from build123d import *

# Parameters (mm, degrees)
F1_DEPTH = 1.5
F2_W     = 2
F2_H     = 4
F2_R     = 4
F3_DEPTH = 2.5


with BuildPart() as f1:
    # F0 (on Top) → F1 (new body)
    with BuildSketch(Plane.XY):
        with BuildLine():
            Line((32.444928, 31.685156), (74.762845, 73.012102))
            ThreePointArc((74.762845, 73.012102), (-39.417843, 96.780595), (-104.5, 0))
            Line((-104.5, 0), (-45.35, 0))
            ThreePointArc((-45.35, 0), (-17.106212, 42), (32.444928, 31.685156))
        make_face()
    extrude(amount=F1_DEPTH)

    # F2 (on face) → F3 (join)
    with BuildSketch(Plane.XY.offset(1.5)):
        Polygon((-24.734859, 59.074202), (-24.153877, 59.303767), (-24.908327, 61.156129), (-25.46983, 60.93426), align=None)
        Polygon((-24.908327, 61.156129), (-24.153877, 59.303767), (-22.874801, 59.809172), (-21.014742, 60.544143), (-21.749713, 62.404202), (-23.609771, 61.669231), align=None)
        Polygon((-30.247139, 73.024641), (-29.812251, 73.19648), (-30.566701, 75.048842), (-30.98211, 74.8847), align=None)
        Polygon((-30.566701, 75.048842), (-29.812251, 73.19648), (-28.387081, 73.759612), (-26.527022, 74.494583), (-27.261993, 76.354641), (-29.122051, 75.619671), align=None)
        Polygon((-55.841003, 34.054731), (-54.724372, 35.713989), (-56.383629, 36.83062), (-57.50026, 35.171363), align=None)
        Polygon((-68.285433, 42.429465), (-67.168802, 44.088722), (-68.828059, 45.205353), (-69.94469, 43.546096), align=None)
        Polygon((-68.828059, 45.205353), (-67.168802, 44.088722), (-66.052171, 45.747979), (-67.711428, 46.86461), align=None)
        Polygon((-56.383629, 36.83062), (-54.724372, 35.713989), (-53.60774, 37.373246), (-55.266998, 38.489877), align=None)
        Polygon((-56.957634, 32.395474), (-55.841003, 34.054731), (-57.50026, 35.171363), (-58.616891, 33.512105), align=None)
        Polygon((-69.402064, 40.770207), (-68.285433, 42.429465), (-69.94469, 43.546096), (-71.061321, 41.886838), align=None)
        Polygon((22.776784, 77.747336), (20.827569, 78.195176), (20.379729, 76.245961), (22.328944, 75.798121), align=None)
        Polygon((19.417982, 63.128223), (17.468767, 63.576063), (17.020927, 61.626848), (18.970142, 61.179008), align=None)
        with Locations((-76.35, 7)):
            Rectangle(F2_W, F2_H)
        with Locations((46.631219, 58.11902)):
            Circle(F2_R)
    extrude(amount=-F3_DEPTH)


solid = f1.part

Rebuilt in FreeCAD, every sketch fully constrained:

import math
import FreeCAD as App
import Part
import Sketcher
from FreeCAD import Vector

doc = App.newDocument("Part")
params = doc.addObject("Spreadsheet::Sheet", "Params")
for row, (alias, value) in enumerate([
    ("sketch1_radius", "104.5 mm"),
    ("sketch1_radius2", "45.35 mm"),
    ("pad1_length", "1.5 mm"),
    ("sketch2_diameter", "8 mm"),
    ("sketch2_width", "2 mm"),
    ("sketch2_height", "4 mm"),
    ("sketch2_length", "2 mm"),
    ("pad2_length", "2.5 mm"),
], start=1):
    params.set(f"A{row}", alias)
    params.set(f"B{row}", "=" + value)
    params.setAlias(f"B{row}", alias)

body = doc.addObject("PartDesign::Body", "Body")

sketch1 = body.newObject("Sketcher::SketchObject", "Sketch")
sketch1.AttachmentSupport = (doc.getObject("XY_Plane"), [""])
sketch1.MapMode = "FlatFace"
sketch1.addGeometry(Part.LineSegment(Vector(32, 32, 0), Vector(75, 73, 0)), False)
sketch1.addGeometry(Part.ArcOfCircle(Part.Circle(Vector(0, 0, 0), Vector(0, 0, 1), 105), math.radians(44), math.radians(180)), False)
sketch1.addGeometry(Part.LineSegment(Vector(-104, 0, 0), Vector(-45, 0, 0)), False)
sketch1.addGeometry(Part.ArcOfCircle(Part.Circle(Vector(0, 0, 0), Vector(0, 0, 1), 45), math.radians(44), math.radians(180)), False)
sketch1.addConstraint(Sketcher.Constraint("Coincident", 0, 2, 1, 1))
sketch1.addConstraint(Sketcher.Constraint("Coincident", 1, 2, 2, 1))
sketch1.addConstraint(Sketcher.Constraint("Coincident", 2, 2, 3, 2))
sketch1.addConstraint(Sketcher.Constraint("Coincident", 3, 1, 0, 1))
sketch1.addConstraint(Sketcher.Constraint("Horizontal", 2))
sketch1.addConstraint(Sketcher.Constraint("Coincident", 1, 3, -1, 1))
sketch1.addConstraint(Sketcher.Constraint("Coincident", 3, 3, -1, 1))
sketch1.addConstraint(Sketcher.Constraint("PointOnObject", 1, 2, -1))
sketch1.addConstraint(Sketcher.Constraint("Radius", 1, 104.5))
sketch1.addConstraint(Sketcher.Constraint("Radius", 3, 45.35))
sketch1.addConstraint(Sketcher.Constraint("DistanceY", -1, 1, 0, 2, 73.012102))
sketch1.addConstraint(Sketcher.Constraint("DistanceX", -1, 1, 3, 1, 32.444928))
sketch1.setExpression("Constraints[8]", "Params.sketch1_radius")
sketch1.setExpression("Constraints[9]", "Params.sketch1_radius2")
pad1 = body.newObject("PartDesign::Pad", "Pad")
pad1.Profile = sketch1
pad1.setExpression("Length", "Params.pad1_length")

sketch2 = body.newObject("Sketcher::SketchObject", "Sketch001")
sketch2.AttachmentSupport = (doc.getObject("XY_Plane"), [""])
sketch2.MapMode = "FlatFace"
sketch2.AttachmentOffset = App.Placement(Vector(0, 0, 1.5), App.Rotation())
sketch2.addGeometry(Part.LineSegment(Vector(-24.73, 59.07, 0), Vector(-24.15, 59.3, 0)), False)
sketch2.addGeometry(Part.LineSegment(Vector(-24.15, 59.3, 0), Vector(-22.87, 59.81, 0)), False)
sketch2.addGeometry(Part.LineSegment(Vector(-22.87, 59.81, 0), Vector(-21.01, 60.54, 0)), False)
sketch2.addGeometry(Part.LineSegment(Vector(-21.01, 60.54, 0), Vector(-21.75, 62.4, 0)), False)
sketch2.addGeometry(Part.LineSegment(Vector(-21.75, 62.4, 0), Vector(-23.61, 61.67, 0)), False)
sketch2.addGeometry(Part.LineSegment(Vector(-23.61, 61.67, 0), Vector(-24.91, 61.16, 0)), False)
sketch2.addGeometry(Part.LineSegment(Vector(-24.91, 61.16, 0), Vector(-25.47, 60.93, 0)), False)
sketch2.addGeometry(Part.LineSegment(Vector(-25.47, 60.93, 0), Vector(-24.73, 59.07, 0)), False)
sketch2.addGeometry(Part.LineSegment(Vector(-30.25, 73.02, 0), Vector(-29.81, 73.2, 0)), False)
sketch2.addGeometry(Part.LineSegment(Vector(-29.81, 73.2, 0), Vector(-28.39, 73.76, 0)), False)
sketch2.addGeometry(Part.LineSegment(Vector(-28.39, 73.76, 0), Vector(-26.53, 74.49, 0)), False)
sketch2.addGeometry(Part.LineSegment(Vector(-26.53, 74.49, 0), Vector(-27.26, 76.35, 0)), False)
sketch2.addGeometry(Part.LineSegment(Vector(-27.26, 76.35, 0), Vector(-29.12, 75.62, 0)), False)
sketch2.addGeometry(Part.LineSegment(Vector(-29.12, 75.62, 0), Vector(-30.57, 75.05, 0)), False)
sketch2.addGeometry(Part.LineSegment(Vector(-30.57, 75.05, 0), Vector(-30.98, 74.88, 0)), False)
sketch2.addGeometry(Part.LineSegment(Vector(-30.98, 74.88, 0), Vector(-30.25, 73.02, 0)), False)
sketch2.addGeometry(Part.LineSegment(Vector(-55.84, 34.05, 0), Vector(-54.72, 35.71, 0)), False)
sketch2.addGeometry(Part.LineSegment(Vector(-54.72, 35.71, 0), Vector(-53.61, 37.37, 0)), False)
sketch2.addGeometry(Part.LineSegment(Vector(-53.61, 37.37, 0), Vector(-55.27, 38.49, 0)), False)
sketch2.addGeometry(Part.LineSegment(Vector(-55.27, 38.49, 0), Vector(-57.5, 35.17, 0)), False)
sketch2.addGeometry(Part.LineSegment(Vector(-57.5, 35.17, 0), Vector(-58.62, 33.51, 0)), False)
sketch2.addGeometry(Part.LineSegment(Vector(-58.62, 33.51, 0), Vector(-56.96, 32.4, 0)), False)
sketch2.addGeometry(Part.LineSegment(Vector(-56.96, 32.4, 0), Vector(-55.84, 34.05, 0)), False)
sketch2.addGeometry(Part.LineSegment(Vector(-68.29, 42.43, 0), Vector(-66.05, 45.75, 0)), False)
sketch2.addGeometry(Part.LineSegment(Vector(-66.05, 45.75, 0), Vector(-67.71, 46.86, 0)), False)
sketch2.addGeometry(Part.LineSegment(Vector(-67.71, 46.86, 0), Vector(-69.94, 43.55, 0)), False)
sketch2.addGeometry(Part.LineSegment(Vector(-69.94, 43.55, 0), Vector(-71.06, 41.89, 0)), False)
sketch2.addGeometry(Part.LineSegment(Vector(-71.06, 41.89, 0), Vector(-69.4, 40.77, 0)), False)
sketch2.addGeometry(Part.LineSegment(Vector(-69.4, 40.77, 0), Vector(-68.29, 42.43, 0)), False)
sketch2.addGeometry(Part.LineSegment(Vector(22.78, 77.75, 0), Vector(20.83, 78.2, 0)), False)
sketch2.addGeometry(Part.LineSegment(Vector(20.83, 78.2, 0), Vector(20.38, 76.25, 0)), False)
sketch2.addGeometry(Part.LineSegment(Vector(20.38, 76.25, 0), Vector(22.33, 75.8, 0)), False)
sketch2.addGeometry(Part.LineSegment(Vector(22.33, 75.8, 0), Vector(22.78, 77.75, 0)), False)
sketch2.addGeometry(Part.LineSegment(Vector(19.42, 63.13, 0), Vector(17.47, 63.58, 0)), False)
sketch2.addGeometry(Part.LineSegment(Vector(17.47, 63.58, 0), Vector(17.02, 61.63, 0)), False)
sketch2.addGeometry(Part.LineSegment(Vector(17.02, 61.63, 0), Vector(18.97, 61.18, 0)), False)
sketch2.addGeometry(Part.LineSegment(Vector(18.97, 61.18, 0), Vector(19.42, 63.13, 0)), False)
sketch2.addGeometry(Part.LineSegment(Vector(-77.35, 9, 0), Vector(-77.35, 5, 0)), False)
sketch2.addGeometry(Part.LineSegment(Vector(-77.35, 5, 0), Vector(-75.35, 5, 0)), False)
sketch2.addGeometry(Part.LineSegment(Vector(-75.35, 5, 0), Vector(-75.35, 9, 0)), False)
sketch2.addGeometry(Part.LineSegment(Vector(-75.35, 9, 0), Vector(-77.35, 9, 0)), False)
sketch2.addGeometry(Part.Circle(Vector(46.63, 58.12, 0), Vector(0, 0, 1), 4), False)
sketch2.addConstraint(Sketcher.Constraint("Coincident", 0, 2, 1, 1))
sketch2.addConstraint(Sketcher.Constraint("Coincident", 1, 2, 2, 1))
sketch2.addConstraint(Sketcher.Constraint("Coincident", 2, 2, 3, 1))
sketch2.addConstraint(Sketcher.Constraint("Coincident", 3, 2, 4, 1))
sketch2.addConstraint(Sketcher.Constraint("Coincident", 4, 2, 5, 1))
sketch2.addConstraint(Sketcher.Constraint("Coincident", 5, 2, 6, 1))
sketch2.addConstraint(Sketcher.Constraint("Coincident", 6, 2, 7, 1))
sketch2.addConstraint(Sketcher.Constraint("Coincident", 7, 2, 0, 1))
sketch2.addConstraint(Sketcher.Constraint("Coincident", 8, 2, 9, 1))
sketch2.addConstraint(Sketcher.Constraint("Coincident", 9, 2, 10, 1))
sketch2.addConstraint(Sketcher.Constraint("Coincident", 10, 2, 11, 1))
sketch2.addConstraint(Sketcher.Constraint("Coincident", 11, 2, 12, 1))
sketch2.addConstraint(Sketcher.Constraint("Coincident", 12, 2, 13, 1))
sketch2.addConstraint(Sketcher.Constraint("Coincident", 13, 2, 14, 1))
sketch2.addConstraint(Sketcher.Constraint("Coincident", 14, 2, 15, 1))
sketch2.addConstraint(Sketcher.Constraint("Coincident", 15, 2, 8, 1))
sketch2.addConstraint(Sketcher.Constraint("Coincident", 16, 2, 17, 1))
sketch2.addConstraint(Sketcher.Constraint("Coincident", 17, 2, 18, 1))
sketch2.addConstraint(Sketcher.Constraint("Coincident", 18, 2, 19, 1))
sketch2.addConstraint(Sketcher.Constraint("Coincident", 19, 2, 20, 1))
sketch2.addConstraint(Sketcher.Constraint("Coincident", 20, 2, 21, 1))
sketch2.addConstraint(Sketcher.Constraint("Coincident", 21, 2, 22, 1))
sketch2.addConstraint(Sketcher.Constraint("Coincident", 22, 2, 16, 1))
sketch2.addConstraint(Sketcher.Constraint("Coincident", 23, 2, 24, 1))
sketch2.addConstraint(Sketcher.Constraint("Coincident", 24, 2, 25, 1))
sketch2.addConstraint(Sketcher.Constraint("Coincident", 25, 2, 26, 1))
sketch2.addConstraint(Sketcher.Constraint("Coincident", 26, 2, 27, 1))
sketch2.addConstraint(Sketcher.Constraint("Coincident", 27, 2, 28, 1))
sketch2.addConstraint(Sketcher.Constraint("Coincident", 28, 2, 23, 1))
sketch2.addConstraint(Sketcher.Constraint("Coincident", 29, 2, 30, 1))
sketch2.addConstraint(Sketcher.Constraint("Coincident", 30, 2, 31, 1))
sketch2.addConstraint(Sketcher.Constraint("Coincident", 31, 2, 32, 1))
sketch2.addConstraint(Sketcher.Constraint("Coincident", 32, 2, 29, 1))
sketch2.addConstraint(Sketcher.Constraint("Coincident", 33, 2, 34, 1))
sketch2.addConstraint(Sketcher.Constraint("Coincident", 34, 2, 35, 1))
sketch2.addConstraint(Sketcher.Constraint("Coincident", 35, 2, 36, 1))
sketch2.addConstraint(Sketcher.Constraint("Coincident", 36, 2, 33, 1))
sketch2.addConstraint(Sketcher.Constraint("Coincident", 37, 2, 38, 1))
sketch2.addConstraint(Sketcher.Constraint("Coincident", 38, 2, 39, 1))
sketch2.addConstraint(Sketcher.Constraint("Coincident", 39, 2, 40, 1))
sketch2.addConstraint(Sketcher.Constraint("Coincident", 40, 2, 37, 1))
sketch2.addConstraint(Sketcher.Constraint("Vertical", 37))
sketch2.addConstraint(Sketcher.Constraint("Horizontal", 38))
sketch2.addConstraint(Sketcher.Constraint("Vertical", 39))
sketch2.addConstraint(Sketcher.Constraint("Horizontal", 40))
sketch2.addConstraint(Sketcher.Constraint("Parallel", 0, 1))
sketch2.addConstraint(Sketcher.Constraint("Parallel", 1, 2))
sketch2.addConstraint(Sketcher.Constraint("Perpendicular", 2, 3))
sketch2.addConstraint(Sketcher.Constraint("Perpendicular", 3, 4))
sketch2.addConstraint(Sketcher.Constraint("Parallel", 4, 5))
sketch2.addConstraint(Sketcher.Constraint("Parallel", 5, 6))
sketch2.addConstraint(Sketcher.Constraint("Perpendicular", 6, 7))
sketch2.addConstraint(Sketcher.Constraint("Perpendicular", 7, 8))
sketch2.addConstraint(Sketcher.Constraint("Parallel", 8, 9))
sketch2.addConstraint(Sketcher.Constraint("Parallel", 9, 10))
sketch2.addConstraint(Sketcher.Constraint("Perpendicular", 10, 11))
sketch2.addConstraint(Sketcher.Constraint("Perpendicular", 11, 12))
sketch2.addConstraint(Sketcher.Constraint("Parallel", 12, 13))
sketch2.addConstraint(Sketcher.Constraint("Parallel", 13, 14))
sketch2.addConstraint(Sketcher.Constraint("Perpendicular", 14, 15))
sketch2.addConstraint(Sketcher.Constraint("Parallel", 16, 17))
sketch2.addConstraint(Sketcher.Constraint("Perpendicular", 17, 18))
sketch2.addConstraint(Sketcher.Constraint("Perpendicular", 18, 19))
sketch2.addConstraint(Sketcher.Constraint("Parallel", 19, 20))
sketch2.addConstraint(Sketcher.Constraint("Perpendicular", 20, 21))
sketch2.addConstraint(Sketcher.Constraint("Perpendicular", 21, 22))
sketch2.addConstraint(Sketcher.Constraint("Parallel", 22, 23))
sketch2.addConstraint(Sketcher.Constraint("Perpendicular", 23, 24))
sketch2.addConstraint(Sketcher.Constraint("Perpendicular", 24, 25))
sketch2.addConstraint(Sketcher.Constraint("Parallel", 25, 26))
sketch2.addConstraint(Sketcher.Constraint("Perpendicular", 26, 27))
sketch2.addConstraint(Sketcher.Constraint("Perpendicular", 27, 28))
sketch2.addConstraint(Sketcher.Constraint("Perpendicular", 29, 30))
sketch2.addConstraint(Sketcher.Constraint("Perpendicular", 30, 31))
sketch2.addConstraint(Sketcher.Constraint("Perpendicular", 31, 32))
sketch2.addConstraint(Sketcher.Constraint("Perpendicular", 32, 33))
sketch2.addConstraint(Sketcher.Constraint("Perpendicular", 33, 34))
sketch2.addConstraint(Sketcher.Constraint("Perpendicular", 34, 35))
sketch2.addConstraint(Sketcher.Constraint("Perpendicular", 35, 36))
sketch2.addConstraint(Sketcher.Constraint("Equal", 2, 3))
sketch2.addConstraint(Sketcher.Constraint("Equal", 3, 4))
sketch2.addConstraint(Sketcher.Constraint("Equal", 7, 10))
sketch2.addConstraint(Sketcher.Constraint("Equal", 10, 11))
sketch2.addConstraint(Sketcher.Constraint("Equal", 11, 12))
sketch2.addConstraint(Sketcher.Constraint("Equal", 15, 16))
sketch2.addConstraint(Sketcher.Constraint("Equal", 16, 17))
sketch2.addConstraint(Sketcher.Constraint("Equal", 17, 18))
sketch2.addConstraint(Sketcher.Constraint("Equal", 18, 20))
sketch2.addConstraint(Sketcher.Constraint("Equal", 21, 22))
sketch2.addConstraint(Sketcher.Constraint("Equal", 19, 23))
sketch2.addConstraint(Sketcher.Constraint("Equal", 22, 24))
sketch2.addConstraint(Sketcher.Constraint("Equal", 23, 25))
sketch2.addConstraint(Sketcher.Constraint("Equal", 24, 26))
sketch2.addConstraint(Sketcher.Constraint("Equal", 28, 29))
sketch2.addConstraint(Sketcher.Constraint("Equal", 29, 30))
sketch2.addConstraint(Sketcher.Constraint("Equal", 32, 33))
sketch2.addConstraint(Sketcher.Constraint("Equal", 33, 34))
sketch2.addConstraint(Sketcher.Constraint("Diameter", 41, 8.0))
sketch2.addConstraint(Sketcher.Constraint("DistanceX", 38, 1, 38, 2, 2.0))
sketch2.addConstraint(Sketcher.Constraint("DistanceY", 37, 2, 37, 1, 4.0))
sketch2.addConstraint(Sketcher.Constraint("Distance", 2, 2.0))
sketch2.addConstraint(Sketcher.Constraint("DistanceY", -1, 1, 37, 2, 5.0))
sketch2.addConstraint(Sketcher.Constraint("DistanceX", 37, 2, -1, 1, 77.35))
sketch2.addConstraint(Sketcher.Constraint("DistanceX", 1, 2, -1, 1, 22.874801))
sketch2.addConstraint(Sketcher.Constraint("DistanceY", -1, 1, 3, 2, 62.404202))
sketch2.addConstraint(Sketcher.Constraint("DistanceX", 13, 2, -1, 1, 30.566701))
sketch2.addConstraint(Sketcher.Constraint("DistanceY", -1, 1, 14, 2, 74.8847))
sketch2.addConstraint(Sketcher.Constraint("DistanceX", 8, 2, 12, 2, 0.6902))
sketch2.addConstraint(Sketcher.Constraint("DistanceY", 13, 2, 11, 2, 1.305799))
sketch2.addConstraint(Sketcher.Constraint("DistanceY", 15, 2, 13, 2, 2.024201))
sketch2.addConstraint(Sketcher.Constraint("DistanceX", 19, 2, 7, 2, 32.765401))
sketch2.addConstraint(Sketcher.Constraint("DistanceX", 23, 2, 16, 2, 11.327799))
sketch2.addConstraint(Sketcher.Constraint("DistanceY", 41, 3, 31, 2, 17.679101))
sketch2.addConstraint(Sketcher.Constraint("Distance", 13, 1.553338))
sketch2.addConstraint(Sketcher.Constraint("DistanceX", -1, 1, 41, 3, 46.631219))
sketch2.addConstraint(Sketcher.Constraint("DistanceY", -1, 1, 41, 3, 58.11902))
sketch2.addConstraint(Sketcher.Constraint("DistanceY", -1, 1, 5, 2, 61.156129))
sketch2.addConstraint(Sketcher.Constraint("DistanceX", 6, 2, -1, 1, 25.46983))
sketch2.addConstraint(Sketcher.Constraint("DistanceY", -1, 1, 16, 2, 35.713989))
sketch2.addConstraint(Sketcher.Constraint("DistanceX", 17, 2, -1, 1, 53.60774))
sketch2.addConstraint(Sketcher.Constraint("DistanceY", -1, 1, 23, 2, 45.747979))
sketch2.addConstraint(Sketcher.Constraint("DistanceX", -1, 1, 29, 2, 20.827569))
sketch2.addConstraint(Sketcher.Constraint("DistanceX", -1, 1, 30, 2, 20.379729))
sketch2.addConstraint(Sketcher.Constraint("DistanceY", -1, 1, 34, 2, 61.626848))
sketch2.addConstraint(Sketcher.Constraint("DistanceX", -1, 1, 35, 2, 18.970142))
sketch2.addConstraint(Sketcher.Constraint("DistanceX", 5, 2, 0, 2, 0.75445))
sketch2.setExpression("Constraints[97]", "Params.sketch2_diameter")
sketch2.setExpression("Constraints[98]", "Params.sketch2_width")
sketch2.setExpression("Constraints[99]", "Params.sketch2_height")
sketch2.setExpression("Constraints[100]", "Params.sketch2_length")
pad2 = body.newObject("PartDesign::Pad", "Pad001")
pad2.Profile = sketch2
pad2.setExpression("Length", "Params.pad2_length")
pad2.Reversed = True

doc.recompute()
